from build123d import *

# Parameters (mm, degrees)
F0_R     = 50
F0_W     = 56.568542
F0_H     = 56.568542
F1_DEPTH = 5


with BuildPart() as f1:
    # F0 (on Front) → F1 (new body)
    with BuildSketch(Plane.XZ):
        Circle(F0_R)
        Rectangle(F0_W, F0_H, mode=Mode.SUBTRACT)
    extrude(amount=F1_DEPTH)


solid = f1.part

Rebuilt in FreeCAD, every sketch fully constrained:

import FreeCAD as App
import Part
import Sketcher

V = App.Vector

doc = App.newDocument("Part")
body = doc.addObject("PartDesign::Body", "Body")

sketch1 = body.newObject("Sketcher::SketchObject", "Sketch")
sketch1.AttachmentSupport = (doc.getObject("XZ_Plane"), [""])
sketch1.MapMode = "FlatFace"
sketch1.addGeometry(Part.Circle(V(0, 0, 0), V(0, 0, 1), 50), False)
sketch1.addGeometry(Part.LineSegment(V(28.284271, -28.284271, 0), V(-28.284271, -28.284271, 0)), False)
sketch1.addGeometry(Part.LineSegment(V(-28.284271, -28.284271, 0), V(-28.284271, 28.284271, 0)), False)
sketch1.addGeometry(Part.LineSegment(V(-28.284271, 28.284271, 0), V(28.284271, 28.284271, 0)), False)
sketch1.addGeometry(Part.LineSegment(V(28.284271, 28.284271, 0), V(28.284271, -28.284271, 0)), False)
sketch1.addConstraint(Sketcher.Constraint("Coincident", 1, 2, 2, 1))
sketch1.addConstraint(Sketcher.Constraint("Coincident", 2, 2, 3, 1))
sketch1.addConstraint(Sketcher.Constraint("Coincident", 3, 2, 4, 1))
sketch1.addConstraint(Sketcher.Constraint("Coincident", 4, 2, 1, 1))
sketch1.addConstraint(Sketcher.Constraint("Horizontal", 1))
sketch1.addConstraint(Sketcher.Constraint("Vertical", 2))
sketch1.addConstraint(Sketcher.Constraint("Horizontal", 3))
sketch1.addConstraint(Sketcher.Constraint("Vertical", 4))
sketch1.addConstraint(Sketcher.Constraint("Coincident", 0, 3, -1, 1))
sketch1.addConstraint(Sketcher.Constraint("Symmetric", 1, 2, 3, 2, -1, 1))
sketch1.addConstraint(Sketcher.Constraint("Equal", 3, 2))
sketch1.addConstraint(Sketcher.Constraint("Diameter", 0, 100.0))
sketch1.addConstraint(Sketcher.Constraint("DistanceX", 1, 2, 1, 1, 56.568542))
pad1 = body.newObject("PartDesign::Pad", "Pad")
pad1.Profile = sketch1
pad1.Length = 5

doc.recompute()
